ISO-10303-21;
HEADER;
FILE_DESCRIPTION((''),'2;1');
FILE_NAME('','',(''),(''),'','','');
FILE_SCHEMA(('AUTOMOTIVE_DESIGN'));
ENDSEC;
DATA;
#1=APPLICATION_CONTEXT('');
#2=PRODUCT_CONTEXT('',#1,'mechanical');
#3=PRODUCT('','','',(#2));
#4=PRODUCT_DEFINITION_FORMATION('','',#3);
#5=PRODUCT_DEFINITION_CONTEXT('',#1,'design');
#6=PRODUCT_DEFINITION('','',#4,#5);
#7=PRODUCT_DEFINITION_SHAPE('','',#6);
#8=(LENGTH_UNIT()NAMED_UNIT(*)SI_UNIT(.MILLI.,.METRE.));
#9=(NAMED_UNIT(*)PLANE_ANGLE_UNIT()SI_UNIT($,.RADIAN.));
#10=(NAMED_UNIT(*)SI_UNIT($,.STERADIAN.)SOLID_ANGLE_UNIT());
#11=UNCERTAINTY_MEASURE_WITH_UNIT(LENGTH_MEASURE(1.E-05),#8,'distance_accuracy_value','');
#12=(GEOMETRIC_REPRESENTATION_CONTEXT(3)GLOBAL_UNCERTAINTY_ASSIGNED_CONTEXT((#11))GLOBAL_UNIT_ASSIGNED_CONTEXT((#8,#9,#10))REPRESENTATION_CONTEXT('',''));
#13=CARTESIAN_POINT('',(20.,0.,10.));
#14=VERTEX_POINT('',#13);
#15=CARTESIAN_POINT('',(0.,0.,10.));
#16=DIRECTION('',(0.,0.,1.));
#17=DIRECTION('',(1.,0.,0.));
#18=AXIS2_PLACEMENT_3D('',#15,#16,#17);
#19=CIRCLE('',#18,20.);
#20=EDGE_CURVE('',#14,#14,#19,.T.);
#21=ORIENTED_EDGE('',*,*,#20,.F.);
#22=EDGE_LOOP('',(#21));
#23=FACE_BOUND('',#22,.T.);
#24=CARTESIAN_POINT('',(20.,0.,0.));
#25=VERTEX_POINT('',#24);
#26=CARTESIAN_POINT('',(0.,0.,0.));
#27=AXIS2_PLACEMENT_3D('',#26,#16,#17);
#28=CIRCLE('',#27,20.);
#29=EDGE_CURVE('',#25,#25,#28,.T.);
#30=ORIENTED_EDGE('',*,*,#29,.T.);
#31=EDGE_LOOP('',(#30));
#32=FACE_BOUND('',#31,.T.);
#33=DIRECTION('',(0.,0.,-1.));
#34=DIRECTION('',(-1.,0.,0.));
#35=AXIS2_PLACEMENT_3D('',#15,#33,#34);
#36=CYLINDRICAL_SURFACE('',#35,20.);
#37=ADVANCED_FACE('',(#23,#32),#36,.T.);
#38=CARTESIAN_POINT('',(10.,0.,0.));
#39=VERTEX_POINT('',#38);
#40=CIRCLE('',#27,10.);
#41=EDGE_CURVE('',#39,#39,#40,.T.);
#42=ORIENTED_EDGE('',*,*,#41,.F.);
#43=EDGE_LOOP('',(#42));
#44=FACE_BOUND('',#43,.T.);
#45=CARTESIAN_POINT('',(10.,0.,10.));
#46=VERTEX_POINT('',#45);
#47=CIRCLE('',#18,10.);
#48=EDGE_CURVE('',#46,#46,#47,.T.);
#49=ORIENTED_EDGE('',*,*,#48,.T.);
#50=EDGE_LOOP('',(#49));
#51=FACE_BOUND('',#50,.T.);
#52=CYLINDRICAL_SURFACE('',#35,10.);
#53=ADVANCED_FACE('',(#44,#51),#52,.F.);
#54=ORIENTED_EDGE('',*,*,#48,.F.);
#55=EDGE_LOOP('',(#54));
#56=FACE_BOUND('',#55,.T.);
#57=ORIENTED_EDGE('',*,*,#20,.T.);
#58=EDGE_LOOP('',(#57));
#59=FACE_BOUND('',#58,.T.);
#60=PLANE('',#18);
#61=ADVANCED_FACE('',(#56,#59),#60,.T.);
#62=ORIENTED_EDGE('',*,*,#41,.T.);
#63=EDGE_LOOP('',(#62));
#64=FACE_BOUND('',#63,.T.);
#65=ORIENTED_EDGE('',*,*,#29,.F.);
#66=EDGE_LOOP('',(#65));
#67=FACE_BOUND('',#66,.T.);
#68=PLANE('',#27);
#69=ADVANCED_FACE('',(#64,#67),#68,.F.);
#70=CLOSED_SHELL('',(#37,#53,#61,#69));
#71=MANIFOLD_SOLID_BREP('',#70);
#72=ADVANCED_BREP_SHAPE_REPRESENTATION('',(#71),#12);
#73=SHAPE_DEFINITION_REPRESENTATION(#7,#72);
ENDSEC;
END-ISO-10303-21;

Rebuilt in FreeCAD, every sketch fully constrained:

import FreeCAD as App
import Part
import Sketcher

doc = App.newDocument("Part")
body = doc.addObject("PartDesign::Body", "Body")

sketch1 = doc.addObject("Sketcher::SketchObject", "Sketch")
body.addObject(sketch1)
sketch1.AttachmentSupport = (doc.XY_Plane, [""])
sketch1.MapMode = "FlatFace"
sketch1.addGeometry([
    Part.Circle(App.Vector(0, 0, 0), App.Vector(0, 0, 1), 20),
    Part.Circle(App.Vector(0, 0, 0), App.Vector(0, 0, 1), 10),
], False)
sketch1.addConstraint([
    Sketcher.Constraint("Coincident", 0, 3, -1, 1),
    Sketcher.Constraint("Coincident", 1, 3, -1, 1),
    Sketcher.Constraint("Diameter", 0, 40.0),
    Sketcher.Constraint("Diameter", 1, 20.0),
])
pad1 = doc.addObject("PartDesign::Pad", "Pad")
body.addObject(pad1)
pad1.Profile = sketch1
pad1.Length = 10

doc.recompute()
